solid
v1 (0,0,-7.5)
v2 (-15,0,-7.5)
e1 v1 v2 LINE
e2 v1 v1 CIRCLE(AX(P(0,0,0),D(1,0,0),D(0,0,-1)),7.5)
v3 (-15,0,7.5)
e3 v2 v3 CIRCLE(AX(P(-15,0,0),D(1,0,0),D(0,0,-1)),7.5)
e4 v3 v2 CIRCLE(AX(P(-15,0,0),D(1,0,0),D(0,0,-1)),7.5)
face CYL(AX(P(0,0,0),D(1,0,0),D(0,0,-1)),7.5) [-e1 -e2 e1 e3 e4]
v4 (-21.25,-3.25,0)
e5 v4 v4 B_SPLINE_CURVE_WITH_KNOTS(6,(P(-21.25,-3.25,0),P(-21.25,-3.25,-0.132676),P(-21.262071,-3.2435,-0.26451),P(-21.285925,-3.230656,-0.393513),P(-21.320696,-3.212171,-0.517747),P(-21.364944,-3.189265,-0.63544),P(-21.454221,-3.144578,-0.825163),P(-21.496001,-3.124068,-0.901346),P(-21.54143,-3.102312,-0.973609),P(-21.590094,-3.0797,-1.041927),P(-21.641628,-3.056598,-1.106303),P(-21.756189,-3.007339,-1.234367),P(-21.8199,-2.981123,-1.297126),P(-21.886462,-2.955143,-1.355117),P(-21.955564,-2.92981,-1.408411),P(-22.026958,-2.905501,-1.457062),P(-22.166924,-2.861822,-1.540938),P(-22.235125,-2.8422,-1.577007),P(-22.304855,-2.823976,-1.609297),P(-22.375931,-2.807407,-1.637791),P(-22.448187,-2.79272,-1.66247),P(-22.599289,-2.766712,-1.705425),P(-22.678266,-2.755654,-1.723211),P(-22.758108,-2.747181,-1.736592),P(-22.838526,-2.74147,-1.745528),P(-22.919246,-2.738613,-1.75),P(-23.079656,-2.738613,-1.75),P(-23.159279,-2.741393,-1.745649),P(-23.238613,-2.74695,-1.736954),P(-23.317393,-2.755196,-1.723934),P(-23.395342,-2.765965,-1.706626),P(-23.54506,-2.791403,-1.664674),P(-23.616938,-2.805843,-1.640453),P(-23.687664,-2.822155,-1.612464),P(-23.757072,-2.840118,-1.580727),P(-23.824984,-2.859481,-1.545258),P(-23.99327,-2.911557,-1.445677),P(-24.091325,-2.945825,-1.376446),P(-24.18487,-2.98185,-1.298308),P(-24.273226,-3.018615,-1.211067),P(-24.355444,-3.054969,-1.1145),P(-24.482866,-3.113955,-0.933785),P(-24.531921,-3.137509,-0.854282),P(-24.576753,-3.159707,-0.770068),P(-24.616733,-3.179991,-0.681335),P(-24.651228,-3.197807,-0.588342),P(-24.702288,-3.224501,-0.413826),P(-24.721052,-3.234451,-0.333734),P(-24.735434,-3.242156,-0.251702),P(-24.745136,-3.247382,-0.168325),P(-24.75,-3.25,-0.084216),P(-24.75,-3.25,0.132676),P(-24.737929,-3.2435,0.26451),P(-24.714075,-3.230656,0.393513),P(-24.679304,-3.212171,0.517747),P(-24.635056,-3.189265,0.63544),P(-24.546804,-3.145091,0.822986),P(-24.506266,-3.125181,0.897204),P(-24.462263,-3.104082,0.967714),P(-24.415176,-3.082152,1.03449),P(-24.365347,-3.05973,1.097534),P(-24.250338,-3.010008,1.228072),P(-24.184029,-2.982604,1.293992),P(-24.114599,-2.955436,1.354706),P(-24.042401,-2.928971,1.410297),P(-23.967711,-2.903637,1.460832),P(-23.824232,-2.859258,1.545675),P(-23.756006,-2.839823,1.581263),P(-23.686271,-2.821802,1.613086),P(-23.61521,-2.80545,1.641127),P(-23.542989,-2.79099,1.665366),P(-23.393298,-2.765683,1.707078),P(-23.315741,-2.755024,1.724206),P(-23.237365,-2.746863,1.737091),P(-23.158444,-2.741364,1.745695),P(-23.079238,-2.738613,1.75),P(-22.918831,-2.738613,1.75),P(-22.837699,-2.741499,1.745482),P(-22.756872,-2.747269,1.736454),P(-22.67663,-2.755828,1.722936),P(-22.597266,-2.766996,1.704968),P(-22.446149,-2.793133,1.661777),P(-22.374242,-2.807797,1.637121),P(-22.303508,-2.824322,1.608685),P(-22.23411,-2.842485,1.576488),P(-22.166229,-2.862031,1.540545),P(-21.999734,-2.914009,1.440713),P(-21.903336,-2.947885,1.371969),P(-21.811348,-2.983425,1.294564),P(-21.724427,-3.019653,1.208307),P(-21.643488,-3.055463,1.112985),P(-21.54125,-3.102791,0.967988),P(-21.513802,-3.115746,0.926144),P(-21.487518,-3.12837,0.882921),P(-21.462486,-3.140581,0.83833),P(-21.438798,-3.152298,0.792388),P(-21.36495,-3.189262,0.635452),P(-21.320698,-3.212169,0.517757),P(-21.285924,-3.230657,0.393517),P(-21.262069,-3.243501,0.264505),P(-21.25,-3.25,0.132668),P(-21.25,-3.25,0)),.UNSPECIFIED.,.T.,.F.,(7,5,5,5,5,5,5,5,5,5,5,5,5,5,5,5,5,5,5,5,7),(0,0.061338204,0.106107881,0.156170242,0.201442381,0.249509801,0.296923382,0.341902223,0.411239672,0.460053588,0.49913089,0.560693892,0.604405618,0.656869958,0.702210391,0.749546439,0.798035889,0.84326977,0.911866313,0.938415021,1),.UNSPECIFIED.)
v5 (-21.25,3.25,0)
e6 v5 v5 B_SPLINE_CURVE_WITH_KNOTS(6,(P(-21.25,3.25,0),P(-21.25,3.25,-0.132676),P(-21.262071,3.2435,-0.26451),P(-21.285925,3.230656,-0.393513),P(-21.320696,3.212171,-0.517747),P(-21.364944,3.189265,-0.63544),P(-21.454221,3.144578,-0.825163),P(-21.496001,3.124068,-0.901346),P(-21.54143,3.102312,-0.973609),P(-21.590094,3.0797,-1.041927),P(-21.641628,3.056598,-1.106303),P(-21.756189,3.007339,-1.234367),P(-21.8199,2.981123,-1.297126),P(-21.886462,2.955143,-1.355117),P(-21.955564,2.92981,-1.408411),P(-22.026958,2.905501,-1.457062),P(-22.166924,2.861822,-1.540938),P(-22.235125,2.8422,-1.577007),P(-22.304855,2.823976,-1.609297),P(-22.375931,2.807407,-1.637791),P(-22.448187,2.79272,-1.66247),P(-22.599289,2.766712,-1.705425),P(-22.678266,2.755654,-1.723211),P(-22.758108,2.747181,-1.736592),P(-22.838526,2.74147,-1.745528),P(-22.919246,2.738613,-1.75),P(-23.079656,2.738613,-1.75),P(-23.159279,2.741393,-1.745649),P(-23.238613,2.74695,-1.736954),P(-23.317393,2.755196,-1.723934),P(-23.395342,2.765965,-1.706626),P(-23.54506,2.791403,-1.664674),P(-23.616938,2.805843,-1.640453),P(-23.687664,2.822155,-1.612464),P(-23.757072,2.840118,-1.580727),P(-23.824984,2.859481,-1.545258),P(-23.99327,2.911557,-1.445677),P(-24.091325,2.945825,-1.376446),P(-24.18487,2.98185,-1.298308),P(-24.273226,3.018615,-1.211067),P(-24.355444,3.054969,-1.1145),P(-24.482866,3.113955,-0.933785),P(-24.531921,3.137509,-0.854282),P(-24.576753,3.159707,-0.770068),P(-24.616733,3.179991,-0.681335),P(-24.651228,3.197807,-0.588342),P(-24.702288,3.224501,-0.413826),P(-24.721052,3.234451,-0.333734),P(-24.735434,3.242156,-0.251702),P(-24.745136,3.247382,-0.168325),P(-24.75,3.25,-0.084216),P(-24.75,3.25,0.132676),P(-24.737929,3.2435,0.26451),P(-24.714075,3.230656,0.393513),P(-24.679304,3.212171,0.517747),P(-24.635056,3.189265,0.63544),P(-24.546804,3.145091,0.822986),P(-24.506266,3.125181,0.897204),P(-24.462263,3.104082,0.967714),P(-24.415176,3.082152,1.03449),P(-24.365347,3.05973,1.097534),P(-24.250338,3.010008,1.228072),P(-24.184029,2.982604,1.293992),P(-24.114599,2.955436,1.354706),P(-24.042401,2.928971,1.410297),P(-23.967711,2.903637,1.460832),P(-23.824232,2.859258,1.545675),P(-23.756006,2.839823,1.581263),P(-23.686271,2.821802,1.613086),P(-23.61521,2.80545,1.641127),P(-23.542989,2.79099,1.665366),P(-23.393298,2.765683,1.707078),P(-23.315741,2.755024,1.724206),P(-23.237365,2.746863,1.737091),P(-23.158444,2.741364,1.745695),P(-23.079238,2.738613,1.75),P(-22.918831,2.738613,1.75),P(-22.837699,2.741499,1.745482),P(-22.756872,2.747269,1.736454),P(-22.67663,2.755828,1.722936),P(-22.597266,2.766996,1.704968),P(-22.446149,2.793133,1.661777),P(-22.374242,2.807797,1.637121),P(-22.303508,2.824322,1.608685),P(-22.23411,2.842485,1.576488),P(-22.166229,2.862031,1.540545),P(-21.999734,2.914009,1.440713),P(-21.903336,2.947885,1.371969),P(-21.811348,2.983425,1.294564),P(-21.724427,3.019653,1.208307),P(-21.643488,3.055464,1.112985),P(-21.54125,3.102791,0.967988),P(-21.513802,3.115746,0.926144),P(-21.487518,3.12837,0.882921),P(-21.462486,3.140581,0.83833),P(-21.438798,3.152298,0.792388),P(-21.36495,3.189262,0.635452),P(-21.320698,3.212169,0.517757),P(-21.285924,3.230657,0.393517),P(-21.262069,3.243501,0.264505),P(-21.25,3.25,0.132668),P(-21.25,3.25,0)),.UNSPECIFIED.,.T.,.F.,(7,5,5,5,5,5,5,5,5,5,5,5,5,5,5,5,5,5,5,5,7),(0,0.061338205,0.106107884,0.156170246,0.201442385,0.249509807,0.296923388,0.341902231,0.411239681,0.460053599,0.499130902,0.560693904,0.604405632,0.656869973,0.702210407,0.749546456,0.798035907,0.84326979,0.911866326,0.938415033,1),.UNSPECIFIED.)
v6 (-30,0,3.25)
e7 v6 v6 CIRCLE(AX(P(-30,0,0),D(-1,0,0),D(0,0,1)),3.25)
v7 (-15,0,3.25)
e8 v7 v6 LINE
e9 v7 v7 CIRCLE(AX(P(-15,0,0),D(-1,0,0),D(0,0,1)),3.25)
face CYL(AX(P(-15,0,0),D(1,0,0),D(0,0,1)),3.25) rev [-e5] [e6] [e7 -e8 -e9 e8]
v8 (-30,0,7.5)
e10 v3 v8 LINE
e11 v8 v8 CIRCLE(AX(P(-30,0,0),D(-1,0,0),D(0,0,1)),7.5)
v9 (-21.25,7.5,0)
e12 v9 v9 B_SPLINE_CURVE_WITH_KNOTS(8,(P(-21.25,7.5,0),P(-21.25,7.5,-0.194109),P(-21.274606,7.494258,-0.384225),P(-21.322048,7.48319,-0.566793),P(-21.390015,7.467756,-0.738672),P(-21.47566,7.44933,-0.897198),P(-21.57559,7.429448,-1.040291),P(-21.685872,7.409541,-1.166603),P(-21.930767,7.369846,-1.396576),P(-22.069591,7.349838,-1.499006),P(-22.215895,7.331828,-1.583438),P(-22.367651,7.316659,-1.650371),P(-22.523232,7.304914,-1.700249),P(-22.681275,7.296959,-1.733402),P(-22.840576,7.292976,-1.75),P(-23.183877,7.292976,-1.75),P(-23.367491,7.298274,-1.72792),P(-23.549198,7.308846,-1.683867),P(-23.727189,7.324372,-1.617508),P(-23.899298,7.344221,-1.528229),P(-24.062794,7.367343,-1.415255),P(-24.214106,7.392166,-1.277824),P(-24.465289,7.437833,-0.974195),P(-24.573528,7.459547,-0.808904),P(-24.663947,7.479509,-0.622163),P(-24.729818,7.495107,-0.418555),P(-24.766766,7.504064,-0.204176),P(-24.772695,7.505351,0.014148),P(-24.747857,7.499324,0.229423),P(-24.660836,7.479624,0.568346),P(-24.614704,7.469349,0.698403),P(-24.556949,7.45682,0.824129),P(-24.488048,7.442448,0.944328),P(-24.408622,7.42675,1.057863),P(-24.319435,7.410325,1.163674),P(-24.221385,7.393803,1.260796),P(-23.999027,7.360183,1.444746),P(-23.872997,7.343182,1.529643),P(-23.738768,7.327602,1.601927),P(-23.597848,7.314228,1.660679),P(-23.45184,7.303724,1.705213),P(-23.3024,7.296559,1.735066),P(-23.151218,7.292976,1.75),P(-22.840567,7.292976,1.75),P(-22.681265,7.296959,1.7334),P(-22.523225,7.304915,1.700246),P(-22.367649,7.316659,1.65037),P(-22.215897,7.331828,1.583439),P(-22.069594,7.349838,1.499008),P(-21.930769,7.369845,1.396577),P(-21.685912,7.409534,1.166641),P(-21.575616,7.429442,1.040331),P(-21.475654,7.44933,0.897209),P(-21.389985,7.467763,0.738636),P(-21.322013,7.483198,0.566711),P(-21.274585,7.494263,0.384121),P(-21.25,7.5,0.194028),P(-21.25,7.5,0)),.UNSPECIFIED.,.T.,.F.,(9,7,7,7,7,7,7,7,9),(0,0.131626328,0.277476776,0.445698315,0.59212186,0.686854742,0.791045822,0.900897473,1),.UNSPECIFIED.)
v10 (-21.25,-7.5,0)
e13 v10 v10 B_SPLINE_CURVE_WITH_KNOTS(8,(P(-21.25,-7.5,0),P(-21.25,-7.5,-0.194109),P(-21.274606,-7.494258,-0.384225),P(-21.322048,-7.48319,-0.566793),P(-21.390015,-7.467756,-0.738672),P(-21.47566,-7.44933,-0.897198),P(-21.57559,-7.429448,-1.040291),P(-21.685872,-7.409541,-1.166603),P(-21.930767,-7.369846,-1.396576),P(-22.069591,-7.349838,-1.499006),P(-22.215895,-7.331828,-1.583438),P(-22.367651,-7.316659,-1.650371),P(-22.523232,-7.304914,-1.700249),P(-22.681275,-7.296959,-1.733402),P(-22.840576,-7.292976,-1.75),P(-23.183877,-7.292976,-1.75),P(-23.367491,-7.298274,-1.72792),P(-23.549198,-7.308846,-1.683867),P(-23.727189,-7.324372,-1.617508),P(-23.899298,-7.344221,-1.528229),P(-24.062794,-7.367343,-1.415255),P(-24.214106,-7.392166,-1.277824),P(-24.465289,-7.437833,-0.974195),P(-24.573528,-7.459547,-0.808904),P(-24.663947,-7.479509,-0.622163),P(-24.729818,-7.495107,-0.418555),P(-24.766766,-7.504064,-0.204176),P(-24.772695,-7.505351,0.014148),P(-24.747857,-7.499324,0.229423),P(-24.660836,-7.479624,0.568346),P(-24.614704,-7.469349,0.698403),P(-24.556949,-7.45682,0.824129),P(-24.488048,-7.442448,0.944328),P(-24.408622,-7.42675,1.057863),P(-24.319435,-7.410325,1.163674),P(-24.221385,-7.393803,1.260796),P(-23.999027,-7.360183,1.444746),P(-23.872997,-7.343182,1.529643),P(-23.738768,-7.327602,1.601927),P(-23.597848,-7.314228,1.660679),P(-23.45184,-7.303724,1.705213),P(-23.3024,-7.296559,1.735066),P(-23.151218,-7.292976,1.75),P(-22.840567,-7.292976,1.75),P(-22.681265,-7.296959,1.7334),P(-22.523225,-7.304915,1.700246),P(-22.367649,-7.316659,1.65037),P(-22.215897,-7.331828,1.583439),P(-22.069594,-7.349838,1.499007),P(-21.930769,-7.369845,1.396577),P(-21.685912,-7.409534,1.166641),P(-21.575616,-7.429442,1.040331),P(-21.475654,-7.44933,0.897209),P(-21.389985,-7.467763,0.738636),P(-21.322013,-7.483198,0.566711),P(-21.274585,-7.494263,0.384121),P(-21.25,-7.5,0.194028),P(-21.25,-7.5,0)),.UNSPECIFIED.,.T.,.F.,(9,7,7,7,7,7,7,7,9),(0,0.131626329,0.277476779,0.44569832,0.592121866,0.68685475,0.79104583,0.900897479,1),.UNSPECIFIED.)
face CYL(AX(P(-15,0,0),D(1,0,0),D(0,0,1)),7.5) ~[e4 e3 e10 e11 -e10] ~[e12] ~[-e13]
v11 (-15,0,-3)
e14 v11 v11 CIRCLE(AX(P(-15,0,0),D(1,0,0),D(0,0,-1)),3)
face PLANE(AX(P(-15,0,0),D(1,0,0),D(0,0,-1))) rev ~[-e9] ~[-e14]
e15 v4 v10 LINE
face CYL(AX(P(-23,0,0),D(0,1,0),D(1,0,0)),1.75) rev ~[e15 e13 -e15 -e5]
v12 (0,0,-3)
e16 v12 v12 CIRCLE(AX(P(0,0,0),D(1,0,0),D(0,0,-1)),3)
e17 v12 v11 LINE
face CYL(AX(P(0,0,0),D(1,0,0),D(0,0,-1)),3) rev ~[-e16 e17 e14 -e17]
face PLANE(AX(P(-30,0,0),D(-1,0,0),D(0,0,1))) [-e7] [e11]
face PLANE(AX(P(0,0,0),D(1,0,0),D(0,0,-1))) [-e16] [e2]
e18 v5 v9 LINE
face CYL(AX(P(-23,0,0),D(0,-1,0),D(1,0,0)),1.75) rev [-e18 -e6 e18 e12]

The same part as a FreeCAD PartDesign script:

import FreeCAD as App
import Part
import Sketcher
from FreeCAD import Vector
Q = App.Units.Quantity

doc = App.newDocument("Part")
body = doc.addObject("PartDesign::Body", "Body")

# Sketch on YZ plane
sketch1 = doc.addObject("Sketcher::SketchObject", "Sketch")
body.addObject(sketch1)
sketch1.AttachmentSupport = (doc.YZ_Plane, [""])
sketch1.MapMode = "FlatFace"
sketch1.addGeometry(Part.Circle(Vector(0, 0, 0), Vector(0, 0, 1), 7.5), False)
sketch1.addGeometry(Part.Circle(Vector(0, 0, 0), Vector(0, 0, 1), 3), False)
sketch1.addConstraint(Sketcher.Constraint("Coincident", 0, 3, -1, 1))
sketch1.addConstraint(Sketcher.Constraint("Coincident", 1, 3, -1, 1))
sketch1.addConstraint(Sketcher.Constraint("Diameter", 0, Q("15 mm")))
sketch1.addConstraint(Sketcher.Constraint("Diameter", 1, Q("6 mm")))
pad1 = doc.addObject("PartDesign::Pad", "Pad")
body.addObject(pad1)
pad1.Profile = sketch1
pad1.Length = 15
pad1.Reversed = True

# Sketch on YZ plane
sketch2 = doc.addObject("Sketcher::SketchObject", "Sketch001")
body.addObject(sketch2)
sketch2.AttachmentSupport = (doc.YZ_Plane, [""])
sketch2.MapMode = "FlatFace"
sketch2.AttachmentOffset = App.Placement(Vector(0, 0, -15), App.Rotation())
sketch2.addGeometry(Part.Circle(Vector(0, 0, 0), Vector(0, 0, 1), 7.5), False)
sketch2.addGeometry(Part.Circle(Vector(0, 0, 0), Vector(0, 0, 1), 3.2), False)
sketch2.addConstraint(Sketcher.Constraint("Coincident", 0, 3, -1, 1))
sketch2.addConstraint(Sketcher.Constraint("Coincident", 1, 3, -1, 1))
sketch2.addConstraint(Sketcher.Constraint("Diameter", 1, Q("6.5 mm")))
sketch2.addConstraint(Sketcher.Constraint("Diameter", 0, Q("15 mm")))
pad2 = doc.addObject("PartDesign::Pad", "Pad001")
body.addObject(pad2)
pad2.Profile = sketch2
pad2.Length = 15
pad2.Reversed = True

# Sketch on XZ plane
sketch3 = doc.addObject("Sketcher::SketchObject", "Sketch002")
body.addObject(sketch3)
sketch3.AttachmentSupport = (doc.XZ_Plane, [""])
sketch3.MapMode = "FlatFace"
sketch3.addGeometry(Part.Circle(Vector(-23, 0, 0), Vector(0, 0, 1), 1.8), False)
sketch3.addConstraint(Sketcher.Constraint("PointOnObject", 0, 3, -1))
sketch3.addConstraint(Sketcher.Constraint("Diameter", 0, Q("3.5 mm")))
sketch3.addConstraint(Sketcher.Constraint("DistanceX", 0, 3, -1, 1, Q("23 mm")))
pocket1 = doc.addObject("PartDesign::Pocket", "Pocket")
body.addObject(pocket1)
pocket1.Profile = sketch3
pocket1.Length = 38
pocket1.Midplane = True

doc.recompute()
